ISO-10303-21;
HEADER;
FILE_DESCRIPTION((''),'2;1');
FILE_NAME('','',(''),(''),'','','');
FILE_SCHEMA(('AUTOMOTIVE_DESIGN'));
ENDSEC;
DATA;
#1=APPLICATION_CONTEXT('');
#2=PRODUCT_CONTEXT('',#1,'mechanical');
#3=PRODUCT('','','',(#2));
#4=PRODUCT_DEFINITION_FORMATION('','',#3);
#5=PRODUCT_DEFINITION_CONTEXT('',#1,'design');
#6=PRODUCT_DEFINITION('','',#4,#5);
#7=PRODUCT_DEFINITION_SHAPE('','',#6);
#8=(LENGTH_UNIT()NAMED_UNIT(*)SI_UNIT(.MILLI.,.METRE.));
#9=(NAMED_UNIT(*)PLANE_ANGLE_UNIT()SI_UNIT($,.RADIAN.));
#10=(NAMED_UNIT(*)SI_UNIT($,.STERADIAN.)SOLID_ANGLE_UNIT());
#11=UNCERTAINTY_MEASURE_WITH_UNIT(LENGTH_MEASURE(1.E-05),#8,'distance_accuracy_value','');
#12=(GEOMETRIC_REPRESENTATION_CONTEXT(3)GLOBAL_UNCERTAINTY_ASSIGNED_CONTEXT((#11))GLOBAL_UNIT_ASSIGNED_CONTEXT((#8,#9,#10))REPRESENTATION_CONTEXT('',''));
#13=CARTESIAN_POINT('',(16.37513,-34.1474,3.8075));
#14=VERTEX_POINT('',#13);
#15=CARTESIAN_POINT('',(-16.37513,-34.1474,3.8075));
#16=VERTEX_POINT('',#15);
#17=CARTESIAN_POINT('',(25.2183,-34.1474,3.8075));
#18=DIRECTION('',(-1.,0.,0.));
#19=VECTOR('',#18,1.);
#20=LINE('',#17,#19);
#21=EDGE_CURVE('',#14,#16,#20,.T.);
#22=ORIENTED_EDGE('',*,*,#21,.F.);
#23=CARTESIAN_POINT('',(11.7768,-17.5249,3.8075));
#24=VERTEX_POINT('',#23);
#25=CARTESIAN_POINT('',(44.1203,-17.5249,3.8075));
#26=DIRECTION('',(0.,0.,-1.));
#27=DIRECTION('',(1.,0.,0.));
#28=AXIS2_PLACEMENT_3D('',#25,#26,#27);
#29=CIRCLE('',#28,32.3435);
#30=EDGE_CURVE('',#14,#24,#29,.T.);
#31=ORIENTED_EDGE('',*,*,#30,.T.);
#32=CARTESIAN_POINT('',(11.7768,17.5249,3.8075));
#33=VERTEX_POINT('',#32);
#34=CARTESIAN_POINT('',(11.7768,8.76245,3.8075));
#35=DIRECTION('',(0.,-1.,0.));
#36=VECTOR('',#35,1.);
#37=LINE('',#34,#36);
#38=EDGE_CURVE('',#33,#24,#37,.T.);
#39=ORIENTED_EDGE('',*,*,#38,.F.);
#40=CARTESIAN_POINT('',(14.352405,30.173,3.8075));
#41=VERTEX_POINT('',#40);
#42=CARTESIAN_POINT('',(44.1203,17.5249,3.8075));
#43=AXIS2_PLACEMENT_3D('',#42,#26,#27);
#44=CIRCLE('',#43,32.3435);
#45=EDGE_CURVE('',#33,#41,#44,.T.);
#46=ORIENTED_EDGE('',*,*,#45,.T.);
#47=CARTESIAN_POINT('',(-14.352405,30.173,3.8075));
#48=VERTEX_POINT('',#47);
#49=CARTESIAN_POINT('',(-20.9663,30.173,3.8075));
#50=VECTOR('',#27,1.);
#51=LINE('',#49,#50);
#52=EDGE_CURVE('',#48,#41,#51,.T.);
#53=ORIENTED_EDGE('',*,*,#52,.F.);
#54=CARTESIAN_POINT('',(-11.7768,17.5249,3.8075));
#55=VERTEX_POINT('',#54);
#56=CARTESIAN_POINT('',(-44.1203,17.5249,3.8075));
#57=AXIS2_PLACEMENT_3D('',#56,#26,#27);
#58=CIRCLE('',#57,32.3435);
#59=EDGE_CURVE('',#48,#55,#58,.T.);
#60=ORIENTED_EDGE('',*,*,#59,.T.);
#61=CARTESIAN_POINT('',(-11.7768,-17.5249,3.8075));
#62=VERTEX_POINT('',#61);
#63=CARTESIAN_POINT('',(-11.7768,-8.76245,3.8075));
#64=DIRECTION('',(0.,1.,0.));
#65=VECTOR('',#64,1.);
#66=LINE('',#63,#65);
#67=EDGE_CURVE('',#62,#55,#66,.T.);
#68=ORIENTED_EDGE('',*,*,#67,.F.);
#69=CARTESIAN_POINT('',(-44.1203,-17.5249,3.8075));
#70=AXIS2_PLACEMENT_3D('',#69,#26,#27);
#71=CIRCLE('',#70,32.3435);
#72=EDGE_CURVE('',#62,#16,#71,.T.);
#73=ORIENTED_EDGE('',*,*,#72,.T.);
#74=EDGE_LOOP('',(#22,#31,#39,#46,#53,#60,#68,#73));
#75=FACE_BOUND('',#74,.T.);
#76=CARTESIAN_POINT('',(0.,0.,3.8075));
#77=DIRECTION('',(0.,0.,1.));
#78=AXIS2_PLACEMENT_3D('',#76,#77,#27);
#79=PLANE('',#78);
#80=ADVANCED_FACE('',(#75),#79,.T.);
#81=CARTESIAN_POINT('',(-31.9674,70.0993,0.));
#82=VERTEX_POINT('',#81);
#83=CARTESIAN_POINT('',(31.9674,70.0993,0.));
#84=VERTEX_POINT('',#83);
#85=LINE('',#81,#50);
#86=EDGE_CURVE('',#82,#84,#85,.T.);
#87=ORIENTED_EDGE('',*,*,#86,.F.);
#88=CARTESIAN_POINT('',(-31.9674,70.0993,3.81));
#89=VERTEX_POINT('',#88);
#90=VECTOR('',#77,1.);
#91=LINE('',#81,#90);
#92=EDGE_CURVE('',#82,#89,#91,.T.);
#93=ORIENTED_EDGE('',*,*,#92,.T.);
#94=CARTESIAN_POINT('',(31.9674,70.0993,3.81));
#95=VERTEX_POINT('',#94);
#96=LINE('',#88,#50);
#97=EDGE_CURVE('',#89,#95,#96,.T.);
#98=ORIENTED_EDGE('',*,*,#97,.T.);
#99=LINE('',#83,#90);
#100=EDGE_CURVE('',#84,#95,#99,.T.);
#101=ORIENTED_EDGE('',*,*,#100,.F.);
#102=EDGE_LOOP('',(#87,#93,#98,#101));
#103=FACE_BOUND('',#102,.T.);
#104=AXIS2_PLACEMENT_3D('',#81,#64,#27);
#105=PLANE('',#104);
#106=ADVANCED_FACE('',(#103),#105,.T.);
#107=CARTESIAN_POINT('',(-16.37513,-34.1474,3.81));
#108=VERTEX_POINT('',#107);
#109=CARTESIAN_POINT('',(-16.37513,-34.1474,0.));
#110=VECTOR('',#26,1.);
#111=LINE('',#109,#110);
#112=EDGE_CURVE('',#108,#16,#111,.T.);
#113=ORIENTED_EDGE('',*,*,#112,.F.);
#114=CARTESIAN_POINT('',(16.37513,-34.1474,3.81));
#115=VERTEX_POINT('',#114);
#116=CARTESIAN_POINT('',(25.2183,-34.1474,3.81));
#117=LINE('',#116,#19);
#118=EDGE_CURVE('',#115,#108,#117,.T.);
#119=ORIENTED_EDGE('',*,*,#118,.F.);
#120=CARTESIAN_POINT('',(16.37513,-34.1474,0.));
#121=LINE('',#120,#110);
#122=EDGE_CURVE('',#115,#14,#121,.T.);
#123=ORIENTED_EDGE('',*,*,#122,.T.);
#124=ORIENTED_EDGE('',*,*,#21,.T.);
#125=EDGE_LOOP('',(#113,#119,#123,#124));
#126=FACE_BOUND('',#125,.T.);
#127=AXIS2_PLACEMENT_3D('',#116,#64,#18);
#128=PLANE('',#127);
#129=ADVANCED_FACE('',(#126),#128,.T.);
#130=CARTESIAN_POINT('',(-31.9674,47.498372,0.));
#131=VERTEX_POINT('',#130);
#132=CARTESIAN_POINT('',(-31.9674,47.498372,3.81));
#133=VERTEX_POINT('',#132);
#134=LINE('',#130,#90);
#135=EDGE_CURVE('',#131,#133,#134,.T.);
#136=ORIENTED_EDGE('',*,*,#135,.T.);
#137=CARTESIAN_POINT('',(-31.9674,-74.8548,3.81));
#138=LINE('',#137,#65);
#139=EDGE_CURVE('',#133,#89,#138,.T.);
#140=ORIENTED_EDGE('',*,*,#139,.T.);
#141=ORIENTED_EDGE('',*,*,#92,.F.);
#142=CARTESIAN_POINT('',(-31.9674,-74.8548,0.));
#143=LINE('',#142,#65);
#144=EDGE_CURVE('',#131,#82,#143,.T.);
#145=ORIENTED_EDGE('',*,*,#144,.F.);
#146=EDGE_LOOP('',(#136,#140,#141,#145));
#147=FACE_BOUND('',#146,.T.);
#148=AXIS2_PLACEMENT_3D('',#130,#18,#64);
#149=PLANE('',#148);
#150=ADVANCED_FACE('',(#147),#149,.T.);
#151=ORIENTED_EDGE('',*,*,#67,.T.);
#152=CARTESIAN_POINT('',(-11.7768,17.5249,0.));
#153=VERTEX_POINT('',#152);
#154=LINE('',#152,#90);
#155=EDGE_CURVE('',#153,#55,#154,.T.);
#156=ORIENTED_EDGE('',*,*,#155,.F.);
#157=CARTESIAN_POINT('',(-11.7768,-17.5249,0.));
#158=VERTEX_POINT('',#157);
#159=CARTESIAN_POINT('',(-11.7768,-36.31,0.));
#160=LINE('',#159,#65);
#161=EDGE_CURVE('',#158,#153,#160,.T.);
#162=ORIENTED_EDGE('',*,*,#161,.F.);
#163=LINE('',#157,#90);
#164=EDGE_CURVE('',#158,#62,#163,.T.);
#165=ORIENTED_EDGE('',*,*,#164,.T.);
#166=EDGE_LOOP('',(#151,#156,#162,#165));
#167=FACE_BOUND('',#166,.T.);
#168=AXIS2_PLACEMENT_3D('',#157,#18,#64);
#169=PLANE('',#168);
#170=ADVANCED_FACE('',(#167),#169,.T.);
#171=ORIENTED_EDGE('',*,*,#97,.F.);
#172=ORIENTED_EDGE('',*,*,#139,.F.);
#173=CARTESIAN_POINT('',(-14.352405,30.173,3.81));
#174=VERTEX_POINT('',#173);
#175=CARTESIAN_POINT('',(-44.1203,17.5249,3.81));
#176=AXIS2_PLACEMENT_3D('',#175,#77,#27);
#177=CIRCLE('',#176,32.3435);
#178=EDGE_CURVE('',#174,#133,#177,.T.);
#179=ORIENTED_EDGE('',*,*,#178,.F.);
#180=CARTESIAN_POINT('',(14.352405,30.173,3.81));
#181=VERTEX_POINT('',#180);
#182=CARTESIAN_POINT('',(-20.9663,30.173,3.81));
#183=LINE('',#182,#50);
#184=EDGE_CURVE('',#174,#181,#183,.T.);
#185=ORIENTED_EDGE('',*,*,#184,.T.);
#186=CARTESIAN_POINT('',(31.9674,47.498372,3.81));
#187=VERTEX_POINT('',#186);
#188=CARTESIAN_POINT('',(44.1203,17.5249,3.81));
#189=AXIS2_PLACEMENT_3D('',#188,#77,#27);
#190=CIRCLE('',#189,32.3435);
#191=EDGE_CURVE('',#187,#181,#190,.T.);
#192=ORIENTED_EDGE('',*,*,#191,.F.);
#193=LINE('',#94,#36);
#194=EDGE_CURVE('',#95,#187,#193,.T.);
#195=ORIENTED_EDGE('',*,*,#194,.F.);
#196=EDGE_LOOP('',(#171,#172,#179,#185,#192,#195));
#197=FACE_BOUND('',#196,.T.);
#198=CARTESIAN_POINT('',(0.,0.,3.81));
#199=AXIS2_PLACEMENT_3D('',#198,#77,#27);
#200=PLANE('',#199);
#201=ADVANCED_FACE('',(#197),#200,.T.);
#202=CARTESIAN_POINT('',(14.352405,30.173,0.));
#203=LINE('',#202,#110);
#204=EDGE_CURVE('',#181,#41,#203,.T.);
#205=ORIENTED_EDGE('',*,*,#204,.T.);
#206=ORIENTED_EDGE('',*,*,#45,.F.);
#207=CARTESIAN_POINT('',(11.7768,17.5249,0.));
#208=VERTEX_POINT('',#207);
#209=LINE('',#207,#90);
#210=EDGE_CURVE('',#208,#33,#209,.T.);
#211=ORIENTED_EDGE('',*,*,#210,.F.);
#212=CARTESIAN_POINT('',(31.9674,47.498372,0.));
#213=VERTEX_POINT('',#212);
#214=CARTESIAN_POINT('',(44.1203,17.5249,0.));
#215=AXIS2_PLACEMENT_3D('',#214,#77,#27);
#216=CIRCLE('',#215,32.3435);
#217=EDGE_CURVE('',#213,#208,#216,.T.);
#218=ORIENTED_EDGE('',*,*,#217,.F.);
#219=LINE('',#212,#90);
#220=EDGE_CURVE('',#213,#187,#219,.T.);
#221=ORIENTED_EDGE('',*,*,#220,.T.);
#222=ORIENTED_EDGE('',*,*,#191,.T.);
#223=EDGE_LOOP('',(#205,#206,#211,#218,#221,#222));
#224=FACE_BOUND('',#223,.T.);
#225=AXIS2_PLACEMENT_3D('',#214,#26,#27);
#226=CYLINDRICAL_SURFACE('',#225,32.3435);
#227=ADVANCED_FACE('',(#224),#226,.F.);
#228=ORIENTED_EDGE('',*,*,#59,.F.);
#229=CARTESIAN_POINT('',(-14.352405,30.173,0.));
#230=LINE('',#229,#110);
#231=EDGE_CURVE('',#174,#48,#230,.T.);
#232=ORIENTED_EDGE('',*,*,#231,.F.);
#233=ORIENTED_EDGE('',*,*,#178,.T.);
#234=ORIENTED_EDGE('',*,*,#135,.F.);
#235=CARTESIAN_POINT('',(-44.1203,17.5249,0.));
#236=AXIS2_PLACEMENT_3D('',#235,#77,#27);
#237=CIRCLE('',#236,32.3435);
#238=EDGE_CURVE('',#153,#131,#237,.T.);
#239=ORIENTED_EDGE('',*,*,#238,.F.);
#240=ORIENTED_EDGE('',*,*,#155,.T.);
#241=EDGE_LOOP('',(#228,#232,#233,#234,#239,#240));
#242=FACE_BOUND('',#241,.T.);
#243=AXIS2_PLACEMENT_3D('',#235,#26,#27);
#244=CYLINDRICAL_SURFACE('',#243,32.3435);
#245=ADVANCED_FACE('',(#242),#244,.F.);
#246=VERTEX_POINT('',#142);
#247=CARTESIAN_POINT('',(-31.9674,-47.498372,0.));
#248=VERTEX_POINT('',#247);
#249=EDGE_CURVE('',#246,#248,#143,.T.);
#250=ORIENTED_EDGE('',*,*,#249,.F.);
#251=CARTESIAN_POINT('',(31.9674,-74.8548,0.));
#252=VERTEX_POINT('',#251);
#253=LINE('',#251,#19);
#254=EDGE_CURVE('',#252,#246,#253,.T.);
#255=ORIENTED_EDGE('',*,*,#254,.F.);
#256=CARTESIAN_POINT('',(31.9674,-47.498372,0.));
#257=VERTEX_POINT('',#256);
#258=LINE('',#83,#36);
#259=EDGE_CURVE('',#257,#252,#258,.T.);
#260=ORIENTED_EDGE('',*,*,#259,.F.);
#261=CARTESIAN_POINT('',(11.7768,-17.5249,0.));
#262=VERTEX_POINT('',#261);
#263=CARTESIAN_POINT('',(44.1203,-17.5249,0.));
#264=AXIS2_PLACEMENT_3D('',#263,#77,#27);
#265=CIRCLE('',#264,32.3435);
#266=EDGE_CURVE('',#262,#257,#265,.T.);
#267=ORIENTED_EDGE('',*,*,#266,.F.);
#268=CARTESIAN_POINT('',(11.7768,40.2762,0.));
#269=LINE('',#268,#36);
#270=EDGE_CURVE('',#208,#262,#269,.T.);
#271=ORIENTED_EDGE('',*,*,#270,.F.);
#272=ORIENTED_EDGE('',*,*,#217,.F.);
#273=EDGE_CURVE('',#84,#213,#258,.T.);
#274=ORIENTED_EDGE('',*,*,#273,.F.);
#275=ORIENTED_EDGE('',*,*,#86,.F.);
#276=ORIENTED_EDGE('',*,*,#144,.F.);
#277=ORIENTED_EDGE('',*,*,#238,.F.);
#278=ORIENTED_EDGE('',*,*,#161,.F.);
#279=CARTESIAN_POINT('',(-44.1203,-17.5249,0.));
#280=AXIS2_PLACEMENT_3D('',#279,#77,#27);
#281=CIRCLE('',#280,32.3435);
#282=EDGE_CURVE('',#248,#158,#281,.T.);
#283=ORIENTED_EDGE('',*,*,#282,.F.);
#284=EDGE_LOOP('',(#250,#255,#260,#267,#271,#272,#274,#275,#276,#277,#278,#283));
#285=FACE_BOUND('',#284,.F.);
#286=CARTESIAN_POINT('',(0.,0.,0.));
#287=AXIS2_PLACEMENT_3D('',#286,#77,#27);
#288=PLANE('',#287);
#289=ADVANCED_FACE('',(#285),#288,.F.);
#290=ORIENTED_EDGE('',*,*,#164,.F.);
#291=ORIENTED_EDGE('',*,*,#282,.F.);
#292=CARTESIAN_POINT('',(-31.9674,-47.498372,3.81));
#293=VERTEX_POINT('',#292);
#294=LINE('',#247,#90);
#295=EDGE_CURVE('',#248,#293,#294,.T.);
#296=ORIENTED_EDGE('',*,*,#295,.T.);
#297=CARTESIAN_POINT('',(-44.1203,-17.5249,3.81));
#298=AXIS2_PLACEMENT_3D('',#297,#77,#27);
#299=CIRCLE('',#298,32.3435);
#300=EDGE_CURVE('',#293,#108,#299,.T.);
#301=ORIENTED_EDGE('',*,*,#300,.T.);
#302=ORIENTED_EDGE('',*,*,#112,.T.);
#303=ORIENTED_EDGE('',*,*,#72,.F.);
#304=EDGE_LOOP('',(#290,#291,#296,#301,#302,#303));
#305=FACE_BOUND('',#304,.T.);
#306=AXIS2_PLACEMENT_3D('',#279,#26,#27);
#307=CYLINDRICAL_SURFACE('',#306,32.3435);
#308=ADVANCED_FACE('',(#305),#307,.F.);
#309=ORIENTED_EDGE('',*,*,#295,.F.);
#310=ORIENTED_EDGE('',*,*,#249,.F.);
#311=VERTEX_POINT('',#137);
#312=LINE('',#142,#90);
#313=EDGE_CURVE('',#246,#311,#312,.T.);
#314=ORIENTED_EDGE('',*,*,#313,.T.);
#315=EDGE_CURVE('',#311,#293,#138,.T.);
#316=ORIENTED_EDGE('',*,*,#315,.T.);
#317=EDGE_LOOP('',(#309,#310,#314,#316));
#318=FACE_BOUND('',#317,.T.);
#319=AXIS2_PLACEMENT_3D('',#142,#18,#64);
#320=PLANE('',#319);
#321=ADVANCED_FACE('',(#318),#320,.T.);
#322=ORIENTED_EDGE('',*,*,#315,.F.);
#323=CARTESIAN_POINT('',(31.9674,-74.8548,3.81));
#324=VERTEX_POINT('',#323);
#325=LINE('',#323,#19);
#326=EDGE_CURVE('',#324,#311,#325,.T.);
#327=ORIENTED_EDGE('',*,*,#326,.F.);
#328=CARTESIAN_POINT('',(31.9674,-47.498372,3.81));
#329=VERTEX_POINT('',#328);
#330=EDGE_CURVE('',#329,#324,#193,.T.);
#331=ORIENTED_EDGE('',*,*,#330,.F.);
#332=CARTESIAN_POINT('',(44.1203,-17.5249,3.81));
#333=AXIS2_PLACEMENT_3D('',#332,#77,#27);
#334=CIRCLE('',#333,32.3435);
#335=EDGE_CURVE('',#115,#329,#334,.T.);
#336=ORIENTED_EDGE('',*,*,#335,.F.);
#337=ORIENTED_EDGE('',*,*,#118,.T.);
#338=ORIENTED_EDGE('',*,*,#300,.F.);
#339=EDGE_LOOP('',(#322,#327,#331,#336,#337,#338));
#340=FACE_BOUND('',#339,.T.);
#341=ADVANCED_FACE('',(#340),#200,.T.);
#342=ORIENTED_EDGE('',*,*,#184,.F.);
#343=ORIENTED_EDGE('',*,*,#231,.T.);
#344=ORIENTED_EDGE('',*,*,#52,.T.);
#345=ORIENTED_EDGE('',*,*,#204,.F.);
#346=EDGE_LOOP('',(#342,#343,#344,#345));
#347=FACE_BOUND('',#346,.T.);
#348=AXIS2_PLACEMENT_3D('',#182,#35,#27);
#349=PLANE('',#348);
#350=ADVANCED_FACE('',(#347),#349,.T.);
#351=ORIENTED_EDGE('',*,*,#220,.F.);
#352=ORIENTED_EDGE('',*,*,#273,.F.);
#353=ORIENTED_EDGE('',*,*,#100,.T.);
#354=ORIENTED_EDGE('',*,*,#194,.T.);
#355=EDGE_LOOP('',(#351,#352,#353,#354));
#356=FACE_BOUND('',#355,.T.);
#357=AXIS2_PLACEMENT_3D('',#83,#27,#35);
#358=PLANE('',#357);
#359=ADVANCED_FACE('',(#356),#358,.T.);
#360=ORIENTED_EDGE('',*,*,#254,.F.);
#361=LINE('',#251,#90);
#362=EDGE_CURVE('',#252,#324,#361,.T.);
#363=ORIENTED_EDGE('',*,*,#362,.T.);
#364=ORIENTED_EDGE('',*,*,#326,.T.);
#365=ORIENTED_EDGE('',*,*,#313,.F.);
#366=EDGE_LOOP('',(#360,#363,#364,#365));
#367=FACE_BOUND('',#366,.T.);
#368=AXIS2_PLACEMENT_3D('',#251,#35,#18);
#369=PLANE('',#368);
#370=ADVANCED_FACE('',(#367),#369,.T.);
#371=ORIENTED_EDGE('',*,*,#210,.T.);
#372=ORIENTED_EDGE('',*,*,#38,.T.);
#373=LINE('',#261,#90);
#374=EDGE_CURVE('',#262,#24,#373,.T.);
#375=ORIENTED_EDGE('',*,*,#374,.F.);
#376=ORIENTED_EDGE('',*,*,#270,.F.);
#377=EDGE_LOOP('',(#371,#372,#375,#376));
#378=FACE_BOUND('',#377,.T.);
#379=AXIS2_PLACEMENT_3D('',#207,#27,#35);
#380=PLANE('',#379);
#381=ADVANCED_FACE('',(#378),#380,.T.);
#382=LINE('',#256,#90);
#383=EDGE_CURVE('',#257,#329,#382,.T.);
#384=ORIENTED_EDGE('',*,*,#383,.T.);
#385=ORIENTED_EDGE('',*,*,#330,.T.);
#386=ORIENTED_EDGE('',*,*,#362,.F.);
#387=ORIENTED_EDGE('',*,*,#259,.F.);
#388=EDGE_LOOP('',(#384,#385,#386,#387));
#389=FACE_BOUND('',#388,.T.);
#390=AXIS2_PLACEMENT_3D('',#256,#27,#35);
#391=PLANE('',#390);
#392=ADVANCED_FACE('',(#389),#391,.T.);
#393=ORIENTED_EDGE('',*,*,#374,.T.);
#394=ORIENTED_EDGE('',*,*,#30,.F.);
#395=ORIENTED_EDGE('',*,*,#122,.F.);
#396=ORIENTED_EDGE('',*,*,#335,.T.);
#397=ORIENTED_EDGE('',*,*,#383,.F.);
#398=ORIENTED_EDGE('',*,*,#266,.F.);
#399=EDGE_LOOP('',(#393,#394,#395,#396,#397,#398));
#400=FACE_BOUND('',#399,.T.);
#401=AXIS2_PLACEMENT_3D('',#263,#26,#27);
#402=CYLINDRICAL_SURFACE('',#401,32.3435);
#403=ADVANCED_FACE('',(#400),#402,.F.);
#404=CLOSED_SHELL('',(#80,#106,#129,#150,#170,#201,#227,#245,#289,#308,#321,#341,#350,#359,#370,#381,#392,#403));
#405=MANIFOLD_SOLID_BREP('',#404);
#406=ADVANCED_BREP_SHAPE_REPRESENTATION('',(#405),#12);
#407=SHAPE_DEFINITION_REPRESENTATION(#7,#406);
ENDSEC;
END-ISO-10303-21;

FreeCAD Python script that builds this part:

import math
import FreeCAD as App
import Part
import Sketcher
from FreeCAD import Vector
Q = App.Units.Quantity


def add_polygon(sketch, points):
    """Adds a closed chain of lines whose ends are joined by coincident constraints."""
    first, n = sketch.GeometryCount, len(points)
    for a, b in zip(points, points[1:] + points[:1]):
        sketch.addGeometry(Part.LineSegment(App.Vector(*a, 0), App.Vector(*b, 0)), False)
    for i in range(n):
        sketch.addConstraint(Sketcher.Constraint("Coincident", first + i, 2, first + (i + 1) % n, 1))

doc = App.newDocument("Part")
params = doc.addObject("Spreadsheet::Sheet", "Params")
for row, (alias, value) in enumerate([
    ("pad1_length", "0.15 in"),
    ("pocket1_length", "0.0000984 in"),
], start=1):
    params.set(f"A{row}", alias)
    params.set(f"B{row}", "=" + value)
    params.setAlias(f"B{row}", alias)

body = doc.addObject("PartDesign::Body", "Body")

sketch1 = doc.addObject("Sketcher::SketchObject", "Sketch")
body.addObject(sketch1)
sketch1.AttachmentSupport = (doc.XY_Plane, [""])
sketch1.MapMode = "FlatFace"
sketch1.addGeometry(Part.LineSegment(Vector(32, 70, 0), Vector(-32, 70, 0)), False)
sketch1.addGeometry(Part.LineSegment(Vector(-32, 70, 0), Vector(-32, 47, 0)), False)
sketch1.addGeometry(Part.ArcOfCircle(Part.Circle(Vector(-44, 18, 0), Vector(0, 0, 1), 32), math.radians(0), math.radians(68)), False)
sketch1.addGeometry(Part.LineSegment(Vector(-12, 18, 0), Vector(-12, -18, 0)), False)
sketch1.addGeometry(Part.ArcOfCircle(Part.Circle(Vector(-44, -18, 0), Vector(0, 0, 1), 32), math.radians(-68), math.radians(0)), False)
sketch1.addGeometry(Part.LineSegment(Vector(-32, -47, 0), Vector(-32, -75, 0)), False)
sketch1.addGeometry(Part.LineSegment(Vector(-32, -75, 0), Vector(32, -75, 0)), False)
sketch1.addGeometry(Part.LineSegment(Vector(32, -75, 0), Vector(32, -47, 0)), False)
sketch1.addGeometry(Part.ArcOfCircle(Part.Circle(Vector(44, -18, 0), Vector(0, 0, 1), 32), math.radians(180), math.radians(248)), False)
sketch1.addGeometry(Part.LineSegment(Vector(12, -18, 0), Vector(12, 18, 0)), False)
sketch1.addGeometry(Part.ArcOfCircle(Part.Circle(Vector(44, 18, 0), Vector(0, 0, 1), 32), math.radians(112), math.radians(180)), False)
sketch1.addGeometry(Part.LineSegment(Vector(32, 47, 0), Vector(32, 70, 0)), False)
sketch1.addConstraint(Sketcher.Constraint("Coincident", 0, 2, 1, 1))
sketch1.addConstraint(Sketcher.Constraint("Coincident", 1, 2, 2, 2))
sketch1.addConstraint(Sketcher.Constraint("Tangent", 2, 1, 3, 1))
sketch1.addConstraint(Sketcher.Constraint("Tangent", 3, 2, 4, 2))
sketch1.addConstraint(Sketcher.Constraint("Coincident", 4, 1, 5, 1))
sketch1.addConstraint(Sketcher.Constraint("Coincident", 5, 2, 6, 1))
sketch1.addConstraint(Sketcher.Constraint("Coincident", 6, 2, 7, 1))
sketch1.addConstraint(Sketcher.Constraint("Coincident", 7, 2, 8, 2))
sketch1.addConstraint(Sketcher.Constraint("Tangent", 8, 1, 9, 1))
sketch1.addConstraint(Sketcher.Constraint("Tangent", 9, 2, 10, 2))
sketch1.addConstraint(Sketcher.Constraint("Coincident", 10, 1, 11, 1))
sketch1.addConstraint(Sketcher.Constraint("Coincident", 11, 2, 0, 1))
sketch1.addConstraint(Sketcher.Constraint("Horizontal", 0))
sketch1.addConstraint(Sketcher.Constraint("Vertical", 1))
sketch1.addConstraint(Sketcher.Constraint("Vertical", 3))
sketch1.addConstraint(Sketcher.Constraint("Vertical", 5))
sketch1.addConstraint(Sketcher.Constraint("Horizontal", 6))
sketch1.addConstraint(Sketcher.Constraint("Vertical", 7))
sketch1.addConstraint(Sketcher.Constraint("Vertical", 9))
sketch1.addConstraint(Sketcher.Constraint("Vertical", 11))
sketch1.addConstraint(Sketcher.Constraint("Equal", 2, 4))
sketch1.addConstraint(Sketcher.Constraint("Equal", 4, 8))
sketch1.addConstraint(Sketcher.Constraint("Equal", 8, 10))
sketch1.addConstraint(Sketcher.Constraint("Symmetric", 2, 3, 8, 3, -1, 1))
sketch1.addConstraint(Sketcher.Constraint("Symmetric", 4, 1, 10, 1, -1, 1))
sketch1.addConstraint(Sketcher.Constraint("Symmetric", 4, 1, 7, 2, -2))
sketch1.addConstraint(Sketcher.Constraint("Horizontal", 1, 2, 10, 1))
sketch1.addConstraint(Sketcher.Constraint("Radius", 2, 32.3435))
sketch1.addConstraint(Sketcher.Constraint("DistanceY", 1, 2, 1, 1, Q("0.8898 in")))
sketch1.addConstraint(Sketcher.Constraint("DistanceY", 5, 2, 2, 3, Q("3.637 in")))
sketch1.addConstraint(Sketcher.Constraint("DistanceX", 0, 2, 0, 1, 63.9348))
sketch1.addConstraint(Sketcher.Constraint("DistanceY", 3, 2, 3, 1, 35.0498))
sketch1.addConstraint(Sketcher.Constraint("DistanceY", 5, 2, 5, 1, 27.3564))
pad1 = doc.addObject("PartDesign::Pad", "Pad")
body.addObject(pad1)
pad1.Profile = sketch1
pad1.setExpression("Length", "Params.pad1_length")

sketch2 = doc.addObject("Sketcher::SketchObject", "Sketch001")
body.addObject(sketch2)
sketch2.AttachmentSupport = (doc.XY_Plane, [""])
sketch2.MapMode = "FlatFace"
sketch2.AttachmentOffset = App.Placement(Vector(0, 0, 0.15 * 25.4), App.Rotation())
add_polygon(sketch2, [(25, 30), (-21, 30), (-21, -34), (25, -34)])
sketch2.addConstraint(Sketcher.Constraint("Horizontal", 0))
sketch2.addConstraint(Sketcher.Constraint("Vertical", 1))
sketch2.addConstraint(Sketcher.Constraint("Horizontal", 2))
sketch2.addConstraint(Sketcher.Constraint("Vertical", 3))
sketch2.addConstraint(Sketcher.Constraint("DistanceX", 0, 2, 0, 1, Q("1.8183 in")))
sketch2.addConstraint(Sketcher.Constraint("DistanceY", 1, 2, 1, 1, Q("2.5323 in")))
sketch2.addConstraint(Sketcher.Constraint("DistanceX", 0, 2, -1, 1, 20.9663))
sketch2.addConstraint(Sketcher.Constraint("DistanceY", -1, 1, 0, 2, 30.173))
pocket1 = doc.addObject("PartDesign::Pocket", "Pocket")
body.addObject(pocket1)
pocket1.Profile = sketch2
pocket1.setExpression("Length", "Params.pocket1_length")

doc.recompute()
